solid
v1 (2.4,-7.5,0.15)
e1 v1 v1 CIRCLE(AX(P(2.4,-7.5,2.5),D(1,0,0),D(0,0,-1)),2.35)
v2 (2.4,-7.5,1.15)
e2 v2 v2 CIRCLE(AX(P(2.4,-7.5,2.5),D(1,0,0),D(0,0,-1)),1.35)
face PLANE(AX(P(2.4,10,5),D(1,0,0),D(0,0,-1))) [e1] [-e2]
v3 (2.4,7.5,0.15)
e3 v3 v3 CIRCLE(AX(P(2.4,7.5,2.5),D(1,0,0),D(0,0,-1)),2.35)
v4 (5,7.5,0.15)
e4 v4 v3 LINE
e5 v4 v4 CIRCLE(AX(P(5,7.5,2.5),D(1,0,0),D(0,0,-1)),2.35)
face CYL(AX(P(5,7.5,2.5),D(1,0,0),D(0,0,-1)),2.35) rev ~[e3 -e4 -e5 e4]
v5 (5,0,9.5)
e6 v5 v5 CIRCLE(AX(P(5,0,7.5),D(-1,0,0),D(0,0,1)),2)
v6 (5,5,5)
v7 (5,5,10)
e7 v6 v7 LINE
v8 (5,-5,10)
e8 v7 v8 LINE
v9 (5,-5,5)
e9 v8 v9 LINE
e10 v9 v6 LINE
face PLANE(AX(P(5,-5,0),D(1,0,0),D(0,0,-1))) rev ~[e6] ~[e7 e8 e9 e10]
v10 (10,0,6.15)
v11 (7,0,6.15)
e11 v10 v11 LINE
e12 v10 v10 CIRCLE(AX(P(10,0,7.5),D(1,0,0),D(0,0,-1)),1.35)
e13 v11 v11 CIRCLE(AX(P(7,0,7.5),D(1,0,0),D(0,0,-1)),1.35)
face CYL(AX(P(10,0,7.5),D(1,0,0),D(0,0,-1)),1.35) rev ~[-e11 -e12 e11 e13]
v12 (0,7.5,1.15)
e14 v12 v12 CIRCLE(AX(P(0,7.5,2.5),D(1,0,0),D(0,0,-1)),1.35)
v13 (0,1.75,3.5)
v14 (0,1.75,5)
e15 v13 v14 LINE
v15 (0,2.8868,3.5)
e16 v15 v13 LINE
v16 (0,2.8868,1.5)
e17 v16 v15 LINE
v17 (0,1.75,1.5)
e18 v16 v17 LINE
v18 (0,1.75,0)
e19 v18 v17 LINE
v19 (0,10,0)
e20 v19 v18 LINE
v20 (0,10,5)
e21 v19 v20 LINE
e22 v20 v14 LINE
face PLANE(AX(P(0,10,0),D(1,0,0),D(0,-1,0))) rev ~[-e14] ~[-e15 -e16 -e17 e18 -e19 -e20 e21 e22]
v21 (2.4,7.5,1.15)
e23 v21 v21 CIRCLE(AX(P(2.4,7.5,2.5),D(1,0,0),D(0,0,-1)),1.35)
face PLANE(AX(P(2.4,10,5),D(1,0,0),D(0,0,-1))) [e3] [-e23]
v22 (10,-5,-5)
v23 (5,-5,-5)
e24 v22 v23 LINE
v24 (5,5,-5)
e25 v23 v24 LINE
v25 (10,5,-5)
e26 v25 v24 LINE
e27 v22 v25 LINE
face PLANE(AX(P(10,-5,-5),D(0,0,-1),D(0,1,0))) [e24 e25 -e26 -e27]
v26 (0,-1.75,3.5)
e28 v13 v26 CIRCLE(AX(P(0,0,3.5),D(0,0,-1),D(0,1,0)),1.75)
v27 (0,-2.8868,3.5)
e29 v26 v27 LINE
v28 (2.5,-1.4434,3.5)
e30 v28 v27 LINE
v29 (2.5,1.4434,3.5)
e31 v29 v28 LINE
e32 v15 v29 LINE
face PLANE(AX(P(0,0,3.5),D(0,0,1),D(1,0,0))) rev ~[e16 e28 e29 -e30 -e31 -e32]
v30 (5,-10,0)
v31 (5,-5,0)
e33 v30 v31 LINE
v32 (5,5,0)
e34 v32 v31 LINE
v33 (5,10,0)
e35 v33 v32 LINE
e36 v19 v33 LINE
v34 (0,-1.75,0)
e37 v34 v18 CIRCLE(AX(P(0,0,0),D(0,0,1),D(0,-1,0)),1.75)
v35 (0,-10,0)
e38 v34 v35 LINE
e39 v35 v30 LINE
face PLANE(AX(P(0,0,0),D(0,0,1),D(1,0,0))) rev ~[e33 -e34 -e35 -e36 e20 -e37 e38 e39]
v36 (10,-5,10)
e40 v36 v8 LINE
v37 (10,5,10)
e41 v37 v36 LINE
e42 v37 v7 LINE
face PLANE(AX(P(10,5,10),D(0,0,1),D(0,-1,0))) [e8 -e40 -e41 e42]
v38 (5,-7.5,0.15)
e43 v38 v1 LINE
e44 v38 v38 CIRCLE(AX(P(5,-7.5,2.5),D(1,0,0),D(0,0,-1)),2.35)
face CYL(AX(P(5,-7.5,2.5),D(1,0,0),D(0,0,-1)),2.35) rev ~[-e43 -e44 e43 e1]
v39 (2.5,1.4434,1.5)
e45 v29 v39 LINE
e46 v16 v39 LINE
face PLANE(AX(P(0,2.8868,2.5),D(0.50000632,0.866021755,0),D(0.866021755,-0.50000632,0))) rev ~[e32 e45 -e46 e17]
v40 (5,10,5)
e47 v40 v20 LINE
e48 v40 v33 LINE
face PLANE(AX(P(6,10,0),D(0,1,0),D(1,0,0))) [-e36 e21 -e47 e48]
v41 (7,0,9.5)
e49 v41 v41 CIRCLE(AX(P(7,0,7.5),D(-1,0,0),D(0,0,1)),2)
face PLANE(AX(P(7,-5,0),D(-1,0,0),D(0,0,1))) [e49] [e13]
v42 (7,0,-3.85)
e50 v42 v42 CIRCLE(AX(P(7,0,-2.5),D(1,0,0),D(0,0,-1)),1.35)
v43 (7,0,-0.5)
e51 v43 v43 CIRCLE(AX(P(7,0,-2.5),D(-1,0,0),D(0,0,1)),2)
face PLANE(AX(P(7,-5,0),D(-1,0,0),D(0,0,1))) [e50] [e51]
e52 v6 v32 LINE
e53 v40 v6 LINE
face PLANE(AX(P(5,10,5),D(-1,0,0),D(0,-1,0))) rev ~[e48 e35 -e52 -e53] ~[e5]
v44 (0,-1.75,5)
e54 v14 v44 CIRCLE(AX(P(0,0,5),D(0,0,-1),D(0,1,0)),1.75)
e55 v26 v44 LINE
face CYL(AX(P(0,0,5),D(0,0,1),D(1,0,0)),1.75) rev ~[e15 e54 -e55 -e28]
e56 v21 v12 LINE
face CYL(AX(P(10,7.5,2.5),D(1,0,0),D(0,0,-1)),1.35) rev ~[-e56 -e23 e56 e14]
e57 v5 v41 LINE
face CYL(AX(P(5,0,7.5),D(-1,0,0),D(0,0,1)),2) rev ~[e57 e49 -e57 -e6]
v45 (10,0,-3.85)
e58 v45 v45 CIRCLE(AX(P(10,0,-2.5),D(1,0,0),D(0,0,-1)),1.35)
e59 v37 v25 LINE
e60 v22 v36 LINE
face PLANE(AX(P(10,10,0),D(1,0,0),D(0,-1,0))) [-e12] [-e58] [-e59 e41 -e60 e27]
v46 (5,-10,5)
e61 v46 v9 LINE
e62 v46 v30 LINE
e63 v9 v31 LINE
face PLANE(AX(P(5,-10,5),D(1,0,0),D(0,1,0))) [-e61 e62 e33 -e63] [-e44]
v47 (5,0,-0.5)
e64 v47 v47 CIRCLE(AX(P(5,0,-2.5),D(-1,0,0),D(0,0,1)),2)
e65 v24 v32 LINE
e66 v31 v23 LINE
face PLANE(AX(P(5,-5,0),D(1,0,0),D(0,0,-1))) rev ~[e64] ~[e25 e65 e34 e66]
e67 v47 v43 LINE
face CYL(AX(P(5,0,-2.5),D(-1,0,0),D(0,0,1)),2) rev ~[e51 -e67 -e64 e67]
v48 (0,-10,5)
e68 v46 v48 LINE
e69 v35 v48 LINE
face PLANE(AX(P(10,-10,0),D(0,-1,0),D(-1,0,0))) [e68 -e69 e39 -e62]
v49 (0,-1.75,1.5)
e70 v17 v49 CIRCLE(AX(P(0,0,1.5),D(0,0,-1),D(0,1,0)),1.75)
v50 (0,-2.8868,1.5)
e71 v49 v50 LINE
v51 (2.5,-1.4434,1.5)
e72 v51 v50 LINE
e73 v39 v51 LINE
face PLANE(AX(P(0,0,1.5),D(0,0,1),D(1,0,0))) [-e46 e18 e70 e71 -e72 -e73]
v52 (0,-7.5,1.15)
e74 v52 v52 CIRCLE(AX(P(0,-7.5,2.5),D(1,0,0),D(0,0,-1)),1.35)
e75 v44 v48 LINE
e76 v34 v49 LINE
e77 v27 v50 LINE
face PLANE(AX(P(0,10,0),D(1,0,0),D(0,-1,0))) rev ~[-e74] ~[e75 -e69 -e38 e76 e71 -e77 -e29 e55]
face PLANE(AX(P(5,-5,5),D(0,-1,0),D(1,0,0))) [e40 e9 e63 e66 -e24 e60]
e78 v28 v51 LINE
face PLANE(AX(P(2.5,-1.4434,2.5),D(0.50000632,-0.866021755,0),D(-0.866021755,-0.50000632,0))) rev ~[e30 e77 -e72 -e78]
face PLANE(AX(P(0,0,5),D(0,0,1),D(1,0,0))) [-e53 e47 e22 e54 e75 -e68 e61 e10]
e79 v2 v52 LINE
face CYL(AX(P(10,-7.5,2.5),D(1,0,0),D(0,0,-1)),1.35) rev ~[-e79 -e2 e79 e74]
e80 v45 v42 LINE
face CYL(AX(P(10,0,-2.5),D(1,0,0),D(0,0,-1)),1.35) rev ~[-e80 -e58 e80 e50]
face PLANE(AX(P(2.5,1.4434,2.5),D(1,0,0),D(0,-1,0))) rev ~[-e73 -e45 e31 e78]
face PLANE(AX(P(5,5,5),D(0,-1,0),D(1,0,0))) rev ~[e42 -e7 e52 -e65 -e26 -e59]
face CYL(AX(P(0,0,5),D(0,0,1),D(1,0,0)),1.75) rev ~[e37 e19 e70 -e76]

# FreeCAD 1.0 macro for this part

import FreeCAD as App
import Part
import Sketcher
from FreeCAD import Vector
Q = App.Units.Quantity


def add_polygon(sketch, points):
    """Adds a closed chain of lines whose ends are joined by coincident constraints."""
    first, n = sketch.GeometryCount, len(points)
    for a, b in zip(points, points[1:] + points[:1]):
        sketch.addGeometry(Part.LineSegment(App.Vector(*a, 0), App.Vector(*b, 0)), False)
    for i in range(n):
        sketch.addConstraint(Sketcher.Constraint("Coincident", first + i, 2, first + (i + 1) % n, 1))

doc = App.newDocument("Part")
body = doc.addObject("PartDesign::Body", "Body")

sketch1 = body.newObject("Sketcher::SketchObject", "Sketch")
sketch1.AttachmentSupport = (doc.getObject("XY_Plane"), [""])
sketch1.MapMode = "FlatFace"
add_polygon(sketch1, [(0, -10), (10, -10), (10, 10), (0, 10)])
sketch1.addConstraint([
    Sketcher.Constraint("Horizontal", 0),
    Sketcher.Constraint("Vertical", 1),
    Sketcher.Constraint("Horizontal", 2),
    Sketcher.Constraint("Vertical", 3),
    Sketcher.Constraint("Symmetric", 2, 2, 3, 2, -1, 1),
    Sketcher.Constraint("DistanceY", 1, 1, 1, 2, Q("20 mm")),
    Sketcher.Constraint("DistanceX", 0, 1, 0, 2, Q("10 mm")),
])
pad1 = body.newObject("PartDesign::Pad", "Pad")
pad1.Profile = sketch1
pad1.Length = 5

sketch2 = body.newObject("Sketcher::SketchObject", "Sketch001")
sketch2.AttachmentSupport = (doc.getObject("XY_Plane"), [""])
sketch2.MapMode = "FlatFace"
sketch2.AttachmentOffset = App.Placement(Vector(0, 0, 2.5), App.Rotation())
add_polygon(sketch2, [(2.5, 1.4434), (0, 2.8868), (-2.5, 1.4434), (-2.5, -1.4434), (0, -2.8868), (2.5, -1.4434)])
sketch2.addConstraint([
    Sketcher.Constraint("Vertical", 2),
    Sketcher.Constraint("Vertical", 5),
    Sketcher.Constraint("Symmetric", 0, 2, 3, 2, -1, 1),
    Sketcher.Constraint("Symmetric", 1, 2, 4, 2, -1, 1),
    Sketcher.Constraint("PointOnObject", 0, 2, -2),
    Sketcher.Constraint("Parallel", 0, 3),
    Sketcher.Constraint("Horizontal", 2, 2, 4, 2),
    Sketcher.Constraint("DistanceX", 2, 2, 4, 2, Q("5 mm")),
    Sketcher.Constraint("Angle", 0, Q("149.9996 deg")),
    Sketcher.Constraint("DistanceY", 2, 2, 2, 1, Q("2.8868 mm")),
])
pocket1 = body.newObject("PartDesign::Pocket", "Pocket")
pocket1.Profile = sketch2
pocket1.Length = 2
pocket1.Midplane = True

sketch3 = body.newObject("Sketcher::SketchObject", "Sketch002")
sketch3.AttachmentSupport = (doc.getObject("XY_Plane"), [""])
sketch3.MapMode = "FlatFace"
sketch3.AttachmentOffset = App.Placement(Vector(0, 0, 5), App.Rotation())
sketch3.addGeometry(Part.Circle(Vector(0, 0, 0), Vector(0, 0, 1), 1.75), False)
sketch3.addConstraint([
    Sketcher.Constraint("Coincident", 0, 3, -1, 1),
    Sketcher.Constraint("Diameter", 0, Q("3.5 mm")),
])
pocket2 = body.newObject("PartDesign::Pocket", "Pocket001")
pocket2.Profile = sketch3
pocket2.Length = 8

sketch4 = body.newObject("Sketcher::SketchObject", "Sketch003")
sketch4.AttachmentSupport = (doc.getObject("YZ_Plane"), [""])
sketch4.MapMode = "FlatFace"
sketch4.AttachmentOffset = App.Placement(Vector(0, 0, 10), App.Rotation())
sketch4.addGeometry([
    Part.Circle(Vector(7.5, 2.5, 0), Vector(0, 0, 1), 1.35),
    Part.Circle(Vector(-7.5, 2.5, 0), Vector(0, 0, 1), 1.35),
], False)
sketch4.addConstraint([
    Sketcher.Constraint("Equal", 0, 1),
    Sketcher.Constraint("Symmetric", 0, 3, 1, 3, -2),
    Sketcher.Constraint("Diameter", 0, Q("2.7 mm")),
    Sketcher.Constraint("DistanceY", -1, 1, 0, 3, Q("2.5 mm")),
    Sketcher.Constraint("DistanceX", 1, 3, 0, 3, Q("15 mm")),
])
pocket3 = body.newObject("PartDesign::Pocket", "Pocket002")
pocket3.Profile = sketch4
pocket3.Length = 25

sketch5 = body.newObject("Sketcher::SketchObject", "Sketch004")
sketch5.AttachmentSupport = (doc.getObject("YZ_Plane"), [""])
sketch5.MapMode = "FlatFace"
sketch5.AttachmentOffset = App.Placement(Vector(0, 0, 10), App.Rotation())
sketch5.addGeometry([
    Part.Circle(Vector(7.5, 2.5, 0), Vector(0, 0, 1), 2),
    Part.Circle(Vector(-7.5, 2.5, 0), Vector(0, 0, 1), 2),
], False)
sketch5.addConstraint([
    Sketcher.Constraint("Equal", 0, 1),
    Sketcher.Constraint("Symmetric", 0, 3, 1, 3, -2),
    Sketcher.Constraint("Diameter", 0, Q("4 mm")),
    Sketcher.Constraint("DistanceX", 1, 3, 0, 3, Q("15 mm")),
    Sketcher.Constraint("DistanceY", -1, 1, 0, 3, Q("2.5 mm")),
])
pocket4 = body.newObject("PartDesign::Pocket", "Pocket003")
pocket4.Profile = sketch5
pocket4.Length = 4

sketch6 = body.newObject("Sketcher::SketchObject", "Sketch005")
sketch6.AttachmentSupport = (doc.getObject("XY_Plane"), [""])
sketch6.MapMode = "FlatFace"
sketch6.AttachmentOffset = App.Placement(Vector(0, 0, 5), App.Rotation())
add_polygon(sketch6, [(5, -10), (10, -10), (10, -5), (5, -5)])
add_polygon(sketch6, [(5, 5), (10, 5), (10, 10), (5, 10)])
sketch6.addConstraint([
    Sketcher.Constraint("Horizontal", 0),
    Sketcher.Constraint("Vertical", 1),
    Sketcher.Constraint("Horizontal", 2),
    Sketcher.Constraint("Vertical", 3),
    Sketcher.Constraint("Horizontal", 4),
    Sketcher.Constraint("Vertical", 5),
    Sketcher.Constraint("Horizontal", 6),
    Sketcher.Constraint("Vertical", 7),
    Sketcher.Constraint("Symmetric", 1, 2, 4, 2, -1),
    Sketcher.Constraint("Symmetric", 3, 2, 6, 2, -1),
    Sketcher.Constraint("Equal", 6, 1),
    Sketcher.Constraint("DistanceX", 0, 1, 0, 2, Q("5 mm")),
    Sketcher.Constraint("DistanceY", 1, 2, -1, 1, Q("5 mm")),
    Sketcher.Constraint("DistanceX", -1, 1, 2, 2, Q("5 mm")),
])
pocket5 = body.newObject("PartDesign::Pocket", "Pocket004")
pocket5.Profile = sketch6
pocket5.Length = 10

sketch7 = body.newObject("Sketcher::SketchObject", "Sketch006")
sketch7.AttachmentSupport = (doc.getObject("YZ_Plane"), [""])
sketch7.MapMode = "FlatFace"
sketch7.AttachmentOffset = App.Placement(Vector(0, 0, 10), App.Rotation())
add_polygon(sketch7, [(5, 0), (-5, 0), (-5, -5), (5, -5)])
sketch7.addGeometry(Part.Circle(Vector(0, -2.5, 0), Vector(0, 0, 1), 1.35), False)
add_polygon(sketch7, [(-5, 10), (-5, 5), (5, 5), (5, 10)])
sketch7.addGeometry(Part.Circle(Vector(0, 7.5, 0), Vector(0, 0, 1), 1.35), False)
sketch7.addConstraint([
    Sketcher.Constraint("Horizontal", 0),
    Sketcher.Constraint("Vertical", 1),
    Sketcher.Constraint("Horizontal", 2),
    Sketcher.Constraint("Vertical", 3),
    Sketcher.Constraint("Vertical", 5),
    Sketcher.Constraint("Horizontal", 6),
    Sketcher.Constraint("Vertical", 7),
    Sketcher.Constraint("Horizontal", 8),
    Sketcher.Constraint("Equal", 4, 9),
    Sketcher.Constraint("Symmetric", 0, 2, 3, 2, -1, 1),
    Sketcher.Constraint("Symmetric", 2, 2, 5, 2, -1, 1),
    Sketcher.Constraint("PointOnObject", 4, 3, -2),
    Sketcher.Constraint("PointOnObject", 9, 3, -2),
    Sketcher.Constraint("Vertical", 3, 2, 6, 2),
    Sketcher.Constraint("Equal", 3, 5),
    Sketcher.Constraint("Diameter", 4, Q("2.7 mm")),
    Sketcher.Constraint("DistanceY", 1, 2, 1, 1, Q("5 mm")),
    Sketcher.Constraint("DistanceX", 0, 2, -1, 1, Q("5 mm")),
    Sketcher.Constraint("DistanceY", 4, 3, -1, 1, Q("2.5 mm")),
    Sketcher.Constraint("DistanceY", 5, 2, 9, 3, Q("2.5 mm")),
])
pad2 = body.newObject("PartDesign::Pad", "Pad001")
pad2.Profile = sketch7
pad2.Length = 5
pad2.Reversed = True

sketch8 = body.newObject("Sketcher::SketchObject", "Sketch007")
sketch8.AttachmentSupport = (doc.getObject("YZ_Plane"), [""])
sketch8.MapMode = "FlatFace"
sketch8.AttachmentOffset = App.Placement(Vector(0, 0, 5), App.Rotation())
sketch8.addGeometry([
    Part.Circle(Vector(0, 7.5, 0), Vector(0, 0, 1), 2),
    Part.Circle(Vector(0, -2.5, 0), Vector(0, 0, 1), 2),
], False)
sketch8.addConstraint([
    Sketcher.Constraint("Equal", 0, 1),
    Sketcher.Constraint("PointOnObject", 0, 3, -2),
    Sketcher.Constraint("PointOnObject", 1, 3, -2),
    Sketcher.Constraint("Diameter", 0, Q("4 mm")),
    Sketcher.Constraint("DistanceY", 1, 3, 0, 3, Q("10 mm")),
    Sketcher.Constraint("DistanceY", -1, 1, 0, 3, Q("7.5 mm")),
])
pocket6 = body.newObject("PartDesign::Pocket", "Pocket005")
pocket6.Profile = sketch8
pocket6.Length = 2
pocket6.Reversed = True

sketch9 = body.newObject("Sketcher::SketchObject", "Sketch008")
sketch9.AttachmentSupport = (doc.getObject("YZ_Plane"), [""])
sketch9.MapMode = "FlatFace"
sketch9.AttachmentOffset = App.Placement(Vector(0, 0, 5), App.Rotation())
sketch9.addGeometry([
    Part.Circle(Vector(7.5, 2.5, 0), Vector(0, 0, 1), 2.35),
    Part.Circle(Vector(7.5, 2.5, 0), Vector(0, 0, 1), 1.35),
    Part.Circle(Vector(-7.5, 2.5, 0), Vector(0, 0, 1), 2.35),
    Part.Circle(Vector(-7.5, 2.5, 0), Vector(0, 0, 1), 1.35),
], False)
sketch9.addConstraint([
    Sketcher.Constraint("Coincident", 1, 3, 0, 3),
    Sketcher.Constraint("Coincident", 3, 3, 2, 3),
    Sketcher.Constraint("Equal", 0, 2),
    Sketcher.Constraint("Equal", 1, 3),
    Sketcher.Constraint("Symmetric", 0, 3, 2, 3, -2),
    Sketcher.Constraint("Diameter", 0, Q("4.7 mm")),
    Sketcher.Constraint("Diameter", 1, Q("2.7 mm")),
    Sketcher.Constraint("DistanceX", 2, 3, 0, 3, Q("15 mm")),
    Sketcher.Constraint("DistanceY", -1, 1, 0, 3, Q("2.5 mm")),
])
pocket7 = body.newObject("PartDesign::Pocket", "Pocket006")
pocket7.Profile = sketch9
pocket7.Length = 2.6

doc.recompute()
